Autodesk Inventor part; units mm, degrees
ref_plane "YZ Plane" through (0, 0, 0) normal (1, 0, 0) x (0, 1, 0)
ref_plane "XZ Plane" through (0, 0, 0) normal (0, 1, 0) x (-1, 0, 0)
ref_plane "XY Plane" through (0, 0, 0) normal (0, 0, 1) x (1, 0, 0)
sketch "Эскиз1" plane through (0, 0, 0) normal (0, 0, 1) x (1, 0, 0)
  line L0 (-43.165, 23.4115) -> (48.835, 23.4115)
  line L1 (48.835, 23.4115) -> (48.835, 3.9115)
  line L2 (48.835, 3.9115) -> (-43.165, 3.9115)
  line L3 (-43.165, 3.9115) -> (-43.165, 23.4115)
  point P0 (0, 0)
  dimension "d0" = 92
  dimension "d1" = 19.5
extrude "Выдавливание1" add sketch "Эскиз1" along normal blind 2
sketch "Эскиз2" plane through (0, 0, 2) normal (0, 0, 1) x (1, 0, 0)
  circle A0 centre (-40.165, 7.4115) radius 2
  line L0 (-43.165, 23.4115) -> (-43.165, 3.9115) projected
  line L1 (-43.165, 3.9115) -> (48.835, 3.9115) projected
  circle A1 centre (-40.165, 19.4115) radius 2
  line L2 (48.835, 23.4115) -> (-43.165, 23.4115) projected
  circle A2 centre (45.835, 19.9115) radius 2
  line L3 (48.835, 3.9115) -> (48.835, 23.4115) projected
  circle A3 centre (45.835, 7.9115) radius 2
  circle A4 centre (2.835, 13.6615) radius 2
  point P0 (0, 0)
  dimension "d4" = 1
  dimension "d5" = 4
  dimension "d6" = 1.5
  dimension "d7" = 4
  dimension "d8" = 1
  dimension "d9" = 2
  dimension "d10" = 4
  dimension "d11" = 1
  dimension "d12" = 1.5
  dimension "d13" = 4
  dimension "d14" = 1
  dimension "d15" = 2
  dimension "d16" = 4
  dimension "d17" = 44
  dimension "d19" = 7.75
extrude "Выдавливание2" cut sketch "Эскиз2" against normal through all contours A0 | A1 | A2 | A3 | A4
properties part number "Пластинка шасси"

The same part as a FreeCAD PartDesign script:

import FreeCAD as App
import Part
import Sketcher
Q = App.Units.Quantity


def add_polygon(sketch, points):
    """Adds a closed chain of lines whose ends are joined by coincident constraints."""
    first, n = sketch.GeometryCount, len(points)
    for a, b in zip(points, points[1:] + points[:1]):
        sketch.addGeometry(Part.LineSegment(App.Vector(*a, 0), App.Vector(*b, 0)), False)
    for i in range(n):
        sketch.addConstraint(Sketcher.Constraint("Coincident", first + i, 2, first + (i + 1) % n, 1))

doc = App.newDocument("Part")
body = doc.addObject("PartDesign::Body", "Body")

# Sketch on XY plane
sketch1 = body.newObject("Sketcher::SketchObject", "Sketch")
sketch1.AttachmentSupport = (doc.getObject("XY_Plane"), [""])
sketch1.MapMode = "FlatFace"
add_polygon(sketch1, [(48.835, 23.4115), (-43.165, 23.4115), (-43.165, 3.9115), (48.835, 3.9115)])  # lines 0-3
sketch1.addConstraint(Sketcher.Constraint("Horizontal", 0))
sketch1.addConstraint(Sketcher.Constraint("Vertical", 1))
sketch1.addConstraint(Sketcher.Constraint("Horizontal", 2))
sketch1.addConstraint(Sketcher.Constraint("Vertical", 3))
sketch1.addConstraint(Sketcher.Constraint("DistanceX", 0, 2, 0, 1, Q("92 mm")))
sketch1.addConstraint(Sketcher.Constraint("DistanceY", 1, 2, 1, 1, Q("19.5 mm")))
sketch1.addConstraint(Sketcher.Constraint("DistanceX", 0, 2, -1, 1, Q("43.165 mm")))
sketch1.addConstraint(Sketcher.Constraint("DistanceY", -1, 1, 0, 2, Q("23.4115 mm")))
pad1 = body.newObject("PartDesign::Pad", "Pad")
pad1.Profile = sketch1
pad1.Length = 2

# Sketch on XY plane
sketch2 = body.newObject("Sketcher::SketchObject", "Sketch001")
sketch2.AttachmentSupport = (doc.getObject("XY_Plane"), [""])
sketch2.MapMode = "FlatFace"
sketch2.AttachmentOffset = App.Placement(App.Vector(0, 0, 2), App.Rotation())
sketch2.addGeometry(Part.Circle(App.Vector(-40.165, 7.4115, 0), App.Vector(0, 0, 1), 2), False)
sketch2.addGeometry(Part.Circle(App.Vector(-40.165, 19.4115, 0), App.Vector(0, 0, 1), 2), False)
sketch2.addGeometry(Part.Circle(App.Vector(45.835, 19.9115, 0), App.Vector(0, 0, 1), 2), False)
sketch2.addGeometry(Part.Circle(App.Vector(45.835, 7.9115, 0), App.Vector(0, 0, 1), 2), False)
sketch2.addGeometry(Part.Circle(App.Vector(2.835, 13.6615, 0), App.Vector(0, 0, 1), 2), False)
sketch2.addConstraint(Sketcher.Constraint("Equal", 0, 1))
sketch2.addConstraint(Sketcher.Constraint("Equal", 1, 2))
sketch2.addConstraint(Sketcher.Constraint("Equal", 2, 3))
sketch2.addConstraint(Sketcher.Constraint("Equal", 3, 4))
sketch2.addConstraint(Sketcher.Constraint("Vertical", 0, 3, 1, 3))
sketch2.addConstraint(Sketcher.Constraint("Vertical", 2, 3, 3, 3))
sketch2.addConstraint(Sketcher.Constraint("Diameter", 0, Q("4 mm")))
sketch2.addConstraint(Sketcher.Constraint("DistanceY", 0, 3, 1, 3, Q("12 mm")))
sketch2.addConstraint(Sketcher.Constraint("DistanceX", 1, 3, 2, 3, Q("86 mm")))
sketch2.addConstraint(Sketcher.Constraint("DistanceY", 3, 3, 2, 3, Q("12 mm")))
sketch2.addConstraint(Sketcher.Constraint("DistanceX", 1, 3, 4, 3, Q("43 mm")))
sketch2.addConstraint(Sketcher.Constraint("DistanceY", 1, 3, 2, 3, Q("0.5 mm")))
sketch2.addConstraint(Sketcher.Constraint("DistanceY", 4, 3, 1, 3, Q("5.75 mm")))
sketch2.addConstraint(Sketcher.Constraint("DistanceX", 0, 3, -1, 1, Q("40.165 mm")))
sketch2.addConstraint(Sketcher.Constraint("DistanceY", -1, 1, 0, 3, Q("7.4115 mm")))
pocket1 = body.newObject("PartDesign::Pocket", "Pocket")
pocket1.Profile = sketch2
pocket1.Type = "ThroughAll"

doc.recompute()
